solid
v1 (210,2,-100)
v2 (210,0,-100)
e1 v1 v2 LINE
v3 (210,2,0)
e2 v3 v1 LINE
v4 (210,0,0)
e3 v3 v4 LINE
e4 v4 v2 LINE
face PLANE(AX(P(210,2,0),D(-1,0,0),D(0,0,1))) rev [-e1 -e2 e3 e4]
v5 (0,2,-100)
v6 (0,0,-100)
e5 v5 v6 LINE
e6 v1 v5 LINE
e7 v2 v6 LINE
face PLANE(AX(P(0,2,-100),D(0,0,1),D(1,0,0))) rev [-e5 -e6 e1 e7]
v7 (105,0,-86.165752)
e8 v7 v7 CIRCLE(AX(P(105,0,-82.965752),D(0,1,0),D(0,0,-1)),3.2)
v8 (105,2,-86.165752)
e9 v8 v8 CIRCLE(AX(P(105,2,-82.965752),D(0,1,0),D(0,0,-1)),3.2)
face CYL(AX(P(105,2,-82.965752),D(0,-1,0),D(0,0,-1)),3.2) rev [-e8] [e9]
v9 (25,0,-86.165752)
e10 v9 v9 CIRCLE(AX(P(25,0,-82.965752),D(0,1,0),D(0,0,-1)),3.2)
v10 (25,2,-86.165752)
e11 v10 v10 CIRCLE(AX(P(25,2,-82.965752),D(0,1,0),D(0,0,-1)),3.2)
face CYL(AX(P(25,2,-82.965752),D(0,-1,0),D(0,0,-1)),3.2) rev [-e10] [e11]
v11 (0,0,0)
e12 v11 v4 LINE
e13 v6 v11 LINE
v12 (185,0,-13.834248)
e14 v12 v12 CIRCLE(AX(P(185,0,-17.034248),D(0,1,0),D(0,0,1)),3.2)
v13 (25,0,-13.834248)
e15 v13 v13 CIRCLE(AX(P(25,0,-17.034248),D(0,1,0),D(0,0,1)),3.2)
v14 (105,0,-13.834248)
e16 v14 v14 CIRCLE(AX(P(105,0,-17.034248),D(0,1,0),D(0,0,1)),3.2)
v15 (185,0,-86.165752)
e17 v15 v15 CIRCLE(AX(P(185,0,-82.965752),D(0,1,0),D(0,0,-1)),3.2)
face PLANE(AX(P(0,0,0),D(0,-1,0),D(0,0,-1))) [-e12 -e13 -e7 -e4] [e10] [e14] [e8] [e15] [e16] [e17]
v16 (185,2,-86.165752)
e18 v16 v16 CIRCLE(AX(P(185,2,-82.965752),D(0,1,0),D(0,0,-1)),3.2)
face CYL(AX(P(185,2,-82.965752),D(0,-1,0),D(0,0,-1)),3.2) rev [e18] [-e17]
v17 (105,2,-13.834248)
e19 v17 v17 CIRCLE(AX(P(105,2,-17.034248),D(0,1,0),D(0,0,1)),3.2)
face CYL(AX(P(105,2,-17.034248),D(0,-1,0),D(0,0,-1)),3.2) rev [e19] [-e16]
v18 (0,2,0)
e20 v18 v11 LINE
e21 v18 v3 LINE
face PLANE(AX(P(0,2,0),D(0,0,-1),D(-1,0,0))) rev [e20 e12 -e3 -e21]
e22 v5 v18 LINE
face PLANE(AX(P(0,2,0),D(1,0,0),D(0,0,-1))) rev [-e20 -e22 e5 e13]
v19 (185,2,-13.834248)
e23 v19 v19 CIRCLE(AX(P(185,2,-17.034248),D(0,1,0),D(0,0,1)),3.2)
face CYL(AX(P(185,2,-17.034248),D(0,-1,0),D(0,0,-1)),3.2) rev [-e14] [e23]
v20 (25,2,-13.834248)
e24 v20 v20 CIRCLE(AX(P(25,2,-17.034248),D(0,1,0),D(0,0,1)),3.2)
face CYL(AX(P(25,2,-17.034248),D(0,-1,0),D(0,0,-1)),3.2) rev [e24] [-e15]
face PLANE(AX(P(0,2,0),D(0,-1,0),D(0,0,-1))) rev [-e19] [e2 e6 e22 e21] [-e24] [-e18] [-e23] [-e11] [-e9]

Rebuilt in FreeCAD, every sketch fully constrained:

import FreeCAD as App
import Part
import Sketcher
from FreeCAD import Vector

doc = App.newDocument("Part")
body = doc.addObject("PartDesign::Body", "Body")

# Sketch on XZ plane
sketch1 = body.newObject("Sketcher::SketchObject", "Sketch")
sketch1.AttachmentSupport = (doc.getObject("XZ_Plane"), [""])
sketch1.MapMode = "FlatFace"
sketch1.addGeometry([
    Part.LineSegment(Vector(0, -100, 0), Vector(0, 0, 0)),  # 0
    Part.LineSegment(Vector(0, 0, 0), Vector(210, 0, 0)),  # 1
    Part.LineSegment(Vector(210, 0, 0), Vector(210, -100, 0)),  # 2
    Part.LineSegment(Vector(210, -100, 0), Vector(0, -100, 0)),  # 3
    Part.Circle(Vector(25, -17, 0), Vector(0, 0, 1), 3.2),  # 4
    Part.Circle(Vector(105, -17, 0), Vector(0, 0, 1), 3.2),  # 5
    Part.Circle(Vector(185, -17, 0), Vector(0, 0, 1), 3.2),  # 6
    Part.Circle(Vector(25, -83, 0), Vector(0, 0, 1), 3.2),  # 7
    Part.Circle(Vector(105, -83, 0), Vector(0, 0, 1), 3.2),  # 8
    Part.Circle(Vector(185, -83, 0), Vector(0, 0, 1), 3.2),  # 9
], False)
sketch1.addConstraint([
    Sketcher.Constraint("Coincident", 0, 2, 1, 1),
    Sketcher.Constraint("Coincident", 1, 2, 2, 1),
    Sketcher.Constraint("Coincident", 2, 2, 3, 1),
    Sketcher.Constraint("Coincident", 3, 2, 0, 1),
    Sketcher.Constraint("Vertical", 0),
    Sketcher.Constraint("Horizontal", 1),
    Sketcher.Constraint("Vertical", 2),
    Sketcher.Constraint("Horizontal", 3),
    Sketcher.Constraint("Coincident", 0, 2, -1, 1),
    Sketcher.Constraint("Equal", 4, 5),
    Sketcher.Constraint("Equal", 5, 6),
    Sketcher.Constraint("Equal", 6, 7),
    Sketcher.Constraint("Equal", 7, 8),
    Sketcher.Constraint("Equal", 8, 9),
    Sketcher.Constraint("Horizontal", 4, 3, 5, 3),
    Sketcher.Constraint("Horizontal", 5, 3, 6, 3),
    Sketcher.Constraint("Horizontal", 7, 3, 8, 3),
    Sketcher.Constraint("Horizontal", 8, 3, 9, 3),
    Sketcher.Constraint("Vertical", 4, 3, 7, 3),
    Sketcher.Constraint("Vertical", 5, 3, 8, 3),
    Sketcher.Constraint("Vertical", 6, 3, 9, 3),
    Sketcher.Constraint("Diameter", 4, 6.4),
    Sketcher.Constraint("DistanceX", 1, 1, 1, 2, 210.0),
    Sketcher.Constraint("DistanceY", 0, 1, 0, 2, 100.0),
    Sketcher.Constraint("DistanceX", -1, 1, 4, 3, 25.0),
    Sketcher.Constraint("DistanceX", -1, 1, 5, 3, 105.0),
    Sketcher.Constraint("DistanceX", -1, 1, 6, 3, 185.0),
    Sketcher.Constraint("DistanceY", 4, 3, -1, 1, 17.034248),
    Sketcher.Constraint("DistanceY", 7, 3, -1, 1, 82.965752),
])
pad1 = body.newObject("PartDesign::Pad", "Pad")
pad1.Profile = sketch1
pad1.Length = 2
pad1.Reversed = True

doc.recompute()
